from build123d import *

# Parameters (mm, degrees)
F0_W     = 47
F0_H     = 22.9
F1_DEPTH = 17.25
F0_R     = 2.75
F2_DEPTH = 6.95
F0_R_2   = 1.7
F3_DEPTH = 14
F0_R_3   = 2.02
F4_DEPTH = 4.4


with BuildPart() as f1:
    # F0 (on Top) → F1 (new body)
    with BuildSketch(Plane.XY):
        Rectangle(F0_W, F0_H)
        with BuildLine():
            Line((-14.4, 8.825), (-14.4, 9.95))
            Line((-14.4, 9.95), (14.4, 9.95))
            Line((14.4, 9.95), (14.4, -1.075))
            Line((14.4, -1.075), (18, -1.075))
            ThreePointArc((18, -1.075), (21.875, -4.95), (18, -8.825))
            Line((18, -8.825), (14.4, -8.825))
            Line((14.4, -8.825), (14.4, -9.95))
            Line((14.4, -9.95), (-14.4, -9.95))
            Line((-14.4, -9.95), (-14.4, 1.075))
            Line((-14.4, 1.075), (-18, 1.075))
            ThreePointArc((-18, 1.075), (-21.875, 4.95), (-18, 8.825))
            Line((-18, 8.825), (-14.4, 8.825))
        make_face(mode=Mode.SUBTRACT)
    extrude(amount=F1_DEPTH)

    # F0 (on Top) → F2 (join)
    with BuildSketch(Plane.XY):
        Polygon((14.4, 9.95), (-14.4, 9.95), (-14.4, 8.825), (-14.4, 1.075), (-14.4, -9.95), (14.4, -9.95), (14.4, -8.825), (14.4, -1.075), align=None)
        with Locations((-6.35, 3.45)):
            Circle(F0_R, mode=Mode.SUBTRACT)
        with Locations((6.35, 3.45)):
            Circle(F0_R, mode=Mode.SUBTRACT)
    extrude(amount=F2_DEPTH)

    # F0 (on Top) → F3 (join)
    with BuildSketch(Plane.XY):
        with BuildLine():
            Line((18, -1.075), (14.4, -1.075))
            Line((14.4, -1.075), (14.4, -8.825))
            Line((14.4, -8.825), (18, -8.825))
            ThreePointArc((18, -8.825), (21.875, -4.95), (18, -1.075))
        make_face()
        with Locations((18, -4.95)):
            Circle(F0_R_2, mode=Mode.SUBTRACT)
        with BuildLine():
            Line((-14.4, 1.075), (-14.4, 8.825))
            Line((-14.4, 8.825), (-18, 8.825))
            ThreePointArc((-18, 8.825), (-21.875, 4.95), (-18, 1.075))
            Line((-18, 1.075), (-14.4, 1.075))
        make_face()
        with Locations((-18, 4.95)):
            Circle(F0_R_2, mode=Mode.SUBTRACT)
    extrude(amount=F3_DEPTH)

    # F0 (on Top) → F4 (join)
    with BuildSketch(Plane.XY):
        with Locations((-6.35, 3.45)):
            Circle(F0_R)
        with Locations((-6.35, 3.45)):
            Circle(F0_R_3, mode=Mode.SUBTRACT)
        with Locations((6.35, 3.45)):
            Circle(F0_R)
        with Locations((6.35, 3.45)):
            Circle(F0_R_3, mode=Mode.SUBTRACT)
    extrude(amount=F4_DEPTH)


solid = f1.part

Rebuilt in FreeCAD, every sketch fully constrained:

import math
import FreeCAD as App
import Part
import Sketcher

V = App.Vector
Q = App.Units.Quantity


def add_polygon(sketch, points):
    """Adds a closed chain of lines whose ends are joined by coincident constraints."""
    first, n = sketch.GeometryCount, len(points)
    for a, b in zip(points, points[1:] + points[:1]):
        sketch.addGeometry(Part.LineSegment(App.Vector(*a, 0), App.Vector(*b, 0)), False)
    for i in range(n):
        sketch.addConstraint(Sketcher.Constraint("Coincident", first + i, 2, first + (i + 1) % n, 1))

doc = App.newDocument("Part")
body = doc.addObject("PartDesign::Body", "Body")

sketch1 = body.newObject("Sketcher::SketchObject", "Sketch")
sketch1.AttachmentSupport = (doc.getObject("XY_Plane"), [""])
sketch1.MapMode = "FlatFace"
add_polygon(sketch1, [(-23.5, 11.4), (-23.5, -11.4), (23.5, -11.4), (23.5, 11.4)])
sketch1.addGeometry(Part.LineSegment(V(-18, 8.8, 0), V(-14.4, 8.8, 0)), False)
sketch1.addGeometry(Part.LineSegment(V(-14.4, 8.8, 0), V(-14.4, 9.9, 0)), False)
sketch1.addGeometry(Part.LineSegment(V(-14.4, 9.9, 0), V(14.4, 9.9, 0)), False)
sketch1.addGeometry(Part.LineSegment(V(14.4, 9.9, 0), V(14.4, -1.1, 0)), False)
sketch1.addGeometry(Part.LineSegment(V(14.4, -1.1, 0), V(18, -1.1, 0)), False)
sketch1.addGeometry(Part.ArcOfCircle(Part.Circle(V(18, -5, 0), V(0, 0, 1), 3.9), math.radians(-90), math.radians(90)), False)
sketch1.addGeometry(Part.LineSegment(V(18, -8.8, 0), V(14.4, -8.8, 0)), False)
sketch1.addGeometry(Part.LineSegment(V(14.4, -8.8, 0), V(14.4, -9.9, 0)), False)
sketch1.addGeometry(Part.LineSegment(V(14.4, -9.9, 0), V(-14.4, -9.9, 0)), False)
sketch1.addGeometry(Part.LineSegment(V(-14.4, -9.9, 0), V(-14.4, 1.1, 0)), False)
sketch1.addGeometry(Part.LineSegment(V(-14.4, 1.1, 0), V(-18, 1.1, 0)), False)
sketch1.addGeometry(Part.ArcOfCircle(Part.Circle(V(-18, 5, 0), V(0, 0, 1), 3.9), math.radians(90), math.radians(270)), False)
sketch1.addConstraint(Sketcher.Constraint("Coincident", 4, 2, 5, 1))
sketch1.addConstraint(Sketcher.Constraint("Coincident", 5, 2, 6, 1))
sketch1.addConstraint(Sketcher.Constraint("Coincident", 6, 2, 7, 1))
sketch1.addConstraint(Sketcher.Constraint("Coincident", 7, 2, 8, 1))
sketch1.addConstraint(Sketcher.Constraint("Tangent", 8, 2, 9, 2))
sketch1.addConstraint(Sketcher.Constraint("Tangent", 9, 1, 10, 1))
sketch1.addConstraint(Sketcher.Constraint("Coincident", 10, 2, 11, 1))
sketch1.addConstraint(Sketcher.Constraint("Coincident", 11, 2, 12, 1))
sketch1.addConstraint(Sketcher.Constraint("Coincident", 12, 2, 13, 1))
sketch1.addConstraint(Sketcher.Constraint("Coincident", 13, 2, 14, 1))
sketch1.addConstraint(Sketcher.Constraint("Tangent", 14, 2, 15, 2))
sketch1.addConstraint(Sketcher.Constraint("Tangent", 15, 1, 4, 1))
sketch1.addConstraint(Sketcher.Constraint("Vertical", 0))
sketch1.addConstraint(Sketcher.Constraint("Horizontal", 1))
sketch1.addConstraint(Sketcher.Constraint("Vertical", 2))
sketch1.addConstraint(Sketcher.Constraint("Horizontal", 3))
sketch1.addConstraint(Sketcher.Constraint("Horizontal", 4))
sketch1.addConstraint(Sketcher.Constraint("Vertical", 5))
sketch1.addConstraint(Sketcher.Constraint("Horizontal", 6))
sketch1.addConstraint(Sketcher.Constraint("Vertical", 7))
sketch1.addConstraint(Sketcher.Constraint("Horizontal", 8))
sketch1.addConstraint(Sketcher.Constraint("Horizontal", 10))
sketch1.addConstraint(Sketcher.Constraint("Vertical", 11))
sketch1.addConstraint(Sketcher.Constraint("Horizontal", 12))
sketch1.addConstraint(Sketcher.Constraint("Vertical", 13))
sketch1.addConstraint(Sketcher.Constraint("Horizontal", 14))
sketch1.addConstraint(Sketcher.Constraint("Equal", 9, 15))
sketch1.addConstraint(Sketcher.Constraint("Symmetric", 9, 3, 15, 3, -1, 1))
sketch1.addConstraint(Sketcher.Constraint("Symmetric", 0, 2, 2, 2, -1, 1))
sketch1.addConstraint(Sketcher.Constraint("Symmetric", 5, 2, 11, 2, -1, 1))
sketch1.addConstraint(Sketcher.Constraint("Vertical", 7, 2, 10, 2))
sketch1.addConstraint(Sketcher.Constraint("Vertical", 5, 2, 12, 2))
sketch1.addConstraint(Sketcher.Constraint("DistanceX", 1, 1, 1, 2, Q("47 mm")))
sketch1.addConstraint(Sketcher.Constraint("DistanceX", 4, 1, 4, 2, Q("3.6 mm")))
sketch1.addConstraint(Sketcher.Constraint("DistanceX", 6, 1, 6, 2, Q("28.8 mm")))
sketch1.addConstraint(Sketcher.Constraint("DistanceY", 0, 2, 0, 1, Q("22.9 mm")))
sketch1.addConstraint(Sketcher.Constraint("Radius", 9, Q("3.875 mm")))
sketch1.addConstraint(Sketcher.Constraint("DistanceY", 15, 3, 5, 2, Q("5 mm")))
sketch1.addConstraint(Sketcher.Constraint("DistanceY", 9, 3, 15, 3, Q("9.9 mm")))
pad1 = body.newObject("PartDesign::Pad", "Pad")
pad1.Profile = sketch1
pad1.Length = 17.25

sketch2 = body.newObject("Sketcher::SketchObject", "Sketch001")
sketch2.AttachmentSupport = (doc.getObject("XY_Plane"), [""])
sketch2.MapMode = "FlatFace"
add_polygon(sketch2, [(14.4, 9.9), (-14.4, 9.9), (-14.4, -9.9), (14.4, -9.9)])
sketch2.addGeometry(Part.Circle(V(-6.3, 3.5, 0), V(0, 0, 1), 2.8), False)
sketch2.addGeometry(Part.Circle(V(6.3, 3.5, 0), V(0, 0, 1), 2.8), False)
sketch2.addConstraint(Sketcher.Constraint("Horizontal", 0))
sketch2.addConstraint(Sketcher.Constraint("Vertical", 1))
sketch2.addConstraint(Sketcher.Constraint("Horizontal", 2))
sketch2.addConstraint(Sketcher.Constraint("Vertical", 3))
sketch2.addConstraint(Sketcher.Constraint("Equal", 4, 5))
sketch2.addConstraint(Sketcher.Constraint("Symmetric", 0, 2, 2, 2, -1, 1))
sketch2.addConstraint(Sketcher.Constraint("Symmetric", 4, 3, 5, 3, -2))
sketch2.addConstraint(Sketcher.Constraint("Diameter", 4, Q("5.5 mm")))
sketch2.addConstraint(Sketcher.Constraint("DistanceX", 0, 2, 0, 1, Q("28.8 mm")))
sketch2.addConstraint(Sketcher.Constraint("DistanceY", 1, 2, 1, 1, Q("19.9 mm")))
sketch2.addConstraint(Sketcher.Constraint("DistanceX", 4, 3, 5, 3, Q("12.7 mm")))
sketch2.addConstraint(Sketcher.Constraint("DistanceY", 4, 3, 0, 2, Q("6.5 mm")))
pad2 = body.newObject("PartDesign::Pad", "Pad001")
pad2.Profile = sketch2
pad2.Length = 6.95

sketch3 = body.newObject("Sketcher::SketchObject", "Sketch002")
sketch3.AttachmentSupport = (doc.getObject("XY_Plane"), [""])
sketch3.MapMode = "FlatFace"
sketch3.addGeometry(Part.LineSegment(V(18, -1.1, 0), V(14.4, -1.1, 0)), False)
sketch3.addGeometry(Part.LineSegment(V(14.4, -1.1, 0), V(14.4, -8.8, 0)), False)
sketch3.addGeometry(Part.LineSegment(V(14.4, -8.8, 0), V(18, -8.8, 0)), False)
sketch3.addGeometry(Part.ArcOfCircle(Part.Circle(V(18, -5, 0), V(0, 0, 1), 3.9), math.radians(-90), math.radians(90)), False)
sketch3.addGeometry(Part.Circle(V(18, -5, 0), V(0, 0, 1), 1.7), False)
sketch3.addGeometry(Part.LineSegment(V(-14.4, 1.1, 0), V(-14.4, 8.8, 0)), False)
sketch3.addGeometry(Part.LineSegment(V(-14.4, 8.8, 0), V(-18, 8.8, 0)), False)
sketch3.addGeometry(Part.ArcOfCircle(Part.Circle(V(-18, 5, 0), V(0, 0, 1), 3.9), math.radians(90), math.radians(270)), False)
sketch3.addGeometry(Part.LineSegment(V(-18, 1.1, 0), V(-14.4, 1.1, 0)), False)
sketch3.addGeometry(Part.Circle(V(-18, 5, 0), V(0, 0, 1), 1.7), False)
sketch3.addConstraint(Sketcher.Constraint("Coincident", 0, 2, 1, 1))
sketch3.addConstraint(Sketcher.Constraint("Coincident", 1, 2, 2, 1))
sketch3.addConstraint(Sketcher.Constraint("Tangent", 2, 2, 3, 1))
sketch3.addConstraint(Sketcher.Constraint("Tangent", 3, 2, 0, 1))
sketch3.addConstraint(Sketcher.Constraint("Coincident", 5, 2, 6, 1))
sketch3.addConstraint(Sketcher.Constraint("Tangent", 6, 2, 7, 1))
sketch3.addConstraint(Sketcher.Constraint("Tangent", 7, 2, 8, 1))
sketch3.addConstraint(Sketcher.Constraint("Coincident", 8, 2, 5, 1))
sketch3.addConstraint(Sketcher.Constraint("Horizontal", 0))
sketch3.addConstraint(Sketcher.Constraint("Vertical", 1))
sketch3.addConstraint(Sketcher.Constraint("Horizontal", 2))
sketch3.addConstraint(Sketcher.Constraint("Vertical", 5))
sketch3.addConstraint(Sketcher.Constraint("Horizontal", 6))
sketch3.addConstraint(Sketcher.Constraint("Horizontal", 8))
sketch3.addConstraint(Sketcher.Constraint("Coincident", 4, 3, 3, 3))
sketch3.addConstraint(Sketcher.Constraint("Coincident", 9, 3, 7, 3))
sketch3.addConstraint(Sketcher.Constraint("Equal", 3, 7))
sketch3.addConstraint(Sketcher.Constraint("Equal", 4, 9))
sketch3.addConstraint(Sketcher.Constraint("Symmetric", 3, 3, 7, 3, -1, 1))
sketch3.addConstraint(Sketcher.Constraint("Equal", 2, 6))
sketch3.addConstraint(Sketcher.Constraint("Diameter", 4, Q("3.4 mm")))
sketch3.addConstraint(Sketcher.Constraint("DistanceX", 0, 2, 0, 1, Q("3.6 mm")))
sketch3.addConstraint(Sketcher.Constraint("DistanceX", -1, 1, 3, 3, Q("18 mm")))
sketch3.addConstraint(Sketcher.Constraint("Radius", 3, Q("3.875 mm")))
sketch3.addConstraint(Sketcher.Constraint("DistanceY", 3, 3, 7, 3, Q("9.9 mm")))
pad3 = body.newObject("PartDesign::Pad", "Pad002")
pad3.Profile = sketch3
pad3.Length = 14

sketch4 = body.newObject("Sketcher::SketchObject", "Sketch003")
sketch4.AttachmentSupport = (doc.getObject("XY_Plane"), [""])
sketch4.MapMode = "FlatFace"
sketch4.addGeometry(Part.Circle(V(-6.3, 3.5, 0), V(0, 0, 1), 2.8), False)
sketch4.addGeometry(Part.Circle(V(-6.3, 3.5, 0), V(0, 0, 1), 2), False)
sketch4.addGeometry(Part.Circle(V(6.3, 3.5, 0), V(0, 0, 1), 2.8), False)
sketch4.addGeometry(Part.Circle(V(6.3, 3.5, 0), V(0, 0, 1), 2), False)
sketch4.addConstraint(Sketcher.Constraint("Coincident", 1, 3, 0, 3))
sketch4.addConstraint(Sketcher.Constraint("Coincident", 3, 3, 2, 3))
sketch4.addConstraint(Sketcher.Constraint("Equal", 0, 2))
sketch4.addConstraint(Sketcher.Constraint("Equal", 1, 3))
sketch4.addConstraint(Sketcher.Constraint("Symmetric", 0, 3, 2, 3, -2))
sketch4.addConstraint(Sketcher.Constraint("Diameter", 0, Q("5.5 mm")))
sketch4.addConstraint(Sketcher.Constraint("Diameter", 1, Q("4.04 mm")))
sketch4.addConstraint(Sketcher.Constraint("DistanceX", 0, 3, 2, 3, Q("12.7 mm")))
sketch4.addConstraint(Sketcher.Constraint("DistanceY", -1, 1, 0, 3, Q("3.45 mm")))
pad4 = body.newObject("PartDesign::Pad", "Pad003")
pad4.Profile = sketch4
pad4.Length = 4.4

doc.recompute()
